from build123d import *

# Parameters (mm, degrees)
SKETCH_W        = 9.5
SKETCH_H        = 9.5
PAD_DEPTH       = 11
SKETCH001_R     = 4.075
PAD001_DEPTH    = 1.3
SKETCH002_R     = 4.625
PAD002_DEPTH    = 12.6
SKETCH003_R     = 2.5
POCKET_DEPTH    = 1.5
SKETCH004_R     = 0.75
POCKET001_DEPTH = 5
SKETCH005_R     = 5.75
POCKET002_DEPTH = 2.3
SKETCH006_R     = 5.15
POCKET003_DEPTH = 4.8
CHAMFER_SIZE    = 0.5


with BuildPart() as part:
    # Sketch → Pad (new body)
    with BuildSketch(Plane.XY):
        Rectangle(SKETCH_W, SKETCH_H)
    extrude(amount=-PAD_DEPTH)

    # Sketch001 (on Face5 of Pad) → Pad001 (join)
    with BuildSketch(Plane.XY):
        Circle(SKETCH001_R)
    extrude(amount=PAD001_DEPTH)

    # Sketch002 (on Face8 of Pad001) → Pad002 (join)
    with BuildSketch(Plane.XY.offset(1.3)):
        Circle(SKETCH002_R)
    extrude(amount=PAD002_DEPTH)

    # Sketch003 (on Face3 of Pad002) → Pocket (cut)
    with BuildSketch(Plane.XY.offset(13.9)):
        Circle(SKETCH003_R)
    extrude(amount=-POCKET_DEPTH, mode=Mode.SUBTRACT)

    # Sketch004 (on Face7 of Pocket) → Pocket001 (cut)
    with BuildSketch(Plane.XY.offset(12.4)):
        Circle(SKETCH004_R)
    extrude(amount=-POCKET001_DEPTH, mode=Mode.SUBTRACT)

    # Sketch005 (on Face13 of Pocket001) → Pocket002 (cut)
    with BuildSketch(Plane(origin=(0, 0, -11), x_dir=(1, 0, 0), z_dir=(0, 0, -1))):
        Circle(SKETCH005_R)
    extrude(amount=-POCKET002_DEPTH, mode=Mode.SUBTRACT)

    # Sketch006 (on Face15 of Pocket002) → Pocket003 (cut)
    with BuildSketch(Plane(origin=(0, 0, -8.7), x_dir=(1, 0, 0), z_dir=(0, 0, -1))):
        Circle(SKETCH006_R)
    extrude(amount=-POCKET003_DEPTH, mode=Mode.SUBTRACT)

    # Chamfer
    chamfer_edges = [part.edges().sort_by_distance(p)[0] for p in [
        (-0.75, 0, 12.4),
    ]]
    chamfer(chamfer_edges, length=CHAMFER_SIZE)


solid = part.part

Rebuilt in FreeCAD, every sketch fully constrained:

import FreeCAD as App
import Part
import Sketcher
from FreeCAD import Vector


def edges_at(feature, points):
    """Names of the edges that pass closest to the given points."""
    edges = feature.Shape.Edges
    near = lambda p: min(range(len(edges)), key=lambda i: edges[i].distToShape(Part.Vertex(*p))[0])
    return sorted({f"Edge{near(p) + 1}" for p in points})


def add_polygon(sketch, points):
    """Adds a closed chain of lines whose ends are joined by coincident constraints."""
    first, n = sketch.GeometryCount, len(points)
    for a, b in zip(points, points[1:] + points[:1]):
        sketch.addGeometry(Part.LineSegment(App.Vector(*a, 0), App.Vector(*b, 0)), False)
    for i in range(n):
        sketch.addConstraint(Sketcher.Constraint("Coincident", first + i, 2, first + (i + 1) % n, 1))

doc = App.newDocument("Part")
body = doc.addObject("PartDesign::Body", "Body")

sketch1 = body.newObject("Sketcher::SketchObject", "Sketch")
sketch1.AttachmentSupport = (doc.getObject("XY_Plane"), [""])
sketch1.MapMode = "FlatFace"
add_polygon(sketch1, [(-4.75, 4.75), (-4.75, -4.75), (4.75, -4.75), (4.75, 4.75)])
sketch1.addConstraint([
    Sketcher.Constraint("Vertical", 0),
    Sketcher.Constraint("Horizontal", 1),
    Sketcher.Constraint("Vertical", 2),
    Sketcher.Constraint("Horizontal", 3),
    Sketcher.Constraint("Symmetric", 0, 2, 2, 2, -1, 1),
    Sketcher.Constraint("Equal", 3, 0),
    Sketcher.Constraint("DistanceX", 1, 1, 1, 2, 9.5),
])
pad1 = body.newObject("PartDesign::Pad", "Pad")
pad1.Profile = sketch1
pad1.Length = 11
pad1.Reversed = True

sketch2 = body.newObject("Sketcher::SketchObject", "Sketch001")
sketch2.AttachmentSupport = (doc.getObject("XY_Plane"), [""])
sketch2.MapMode = "FlatFace"
sketch2.addGeometry(Part.Circle(Vector(0, 0, 0), Vector(0, 0, 1), 4.075), False)
sketch2.addConstraint([
    Sketcher.Constraint("Coincident", 0, 3, -1, 1),
    Sketcher.Constraint("Diameter", 0, 8.15),
])
pad2 = body.newObject("PartDesign::Pad", "Pad001")
pad2.Profile = sketch2
pad2.Length = 1.3

sketch3 = body.newObject("Sketcher::SketchObject", "Sketch002")
sketch3.AttachmentSupport = (doc.getObject("XY_Plane"), [""])
sketch3.MapMode = "FlatFace"
sketch3.AttachmentOffset = App.Placement(Vector(0, 0, 1.3), App.Rotation())
sketch3.addGeometry(Part.Circle(Vector(0, 0, 0), Vector(0, 0, 1), 4.625), False)
sketch3.addConstraint([
    Sketcher.Constraint("Coincident", 0, 3, -1, 1),
    Sketcher.Constraint("Diameter", 0, 9.25),
])
pad3 = body.newObject("PartDesign::Pad", "Pad002")
pad3.Profile = sketch3
pad3.Length = 12.6

sketch4 = body.newObject("Sketcher::SketchObject", "Sketch003")
sketch4.AttachmentSupport = (doc.getObject("XY_Plane"), [""])
sketch4.MapMode = "FlatFace"
sketch4.AttachmentOffset = App.Placement(Vector(0, 0, 13.9), App.Rotation())
sketch4.addGeometry(Part.Circle(Vector(0, 0, 0), Vector(0, 0, 1), 2.5), False)
sketch4.addConstraint([
    Sketcher.Constraint("Coincident", 0, 3, -1, 1),
    Sketcher.Constraint("Diameter", 0, 5.0),
])
pocket1 = body.newObject("PartDesign::Pocket", "Pocket")
pocket1.Profile = sketch4
pocket1.Length = 1.5

sketch5 = body.newObject("Sketcher::SketchObject", "Sketch004")
sketch5.AttachmentSupport = (doc.getObject("XY_Plane"), [""])
sketch5.MapMode = "FlatFace"
sketch5.AttachmentOffset = App.Placement(Vector(0, 0, 12.4), App.Rotation())
sketch5.addGeometry(Part.Circle(Vector(0, 0, 0), Vector(0, 0, 1), 0.75), False)
sketch5.addConstraint([
    Sketcher.Constraint("Coincident", 0, 3, -1, 1),
    Sketcher.Constraint("Diameter", 0, 1.5),
])
pocket2 = body.newObject("PartDesign::Pocket", "Pocket001")
pocket2.Profile = sketch5
pocket2.Length = 5

sketch6 = body.newObject("Sketcher::SketchObject", "Sketch005")
sketch6.AttachmentSupport = (doc.getObject("XY_Plane"), [""])
sketch6.MapMode = "FlatFace"
sketch6.AttachmentOffset = App.Placement(Vector(0, 0, -11), App.Rotation())
sketch6.addGeometry(Part.Circle(Vector(0, 0, 0), Vector(0, 0, 1), 5.75), False)
sketch6.addConstraint([
    Sketcher.Constraint("Coincident", 0, 3, -1, 1),
    Sketcher.Constraint("Diameter", 0, 11.5),
])
pocket3 = body.newObject("PartDesign::Pocket", "Pocket002")
pocket3.Profile = sketch6
pocket3.Length = 2.3
pocket3.Reversed = True

sketch7 = body.newObject("Sketcher::SketchObject", "Sketch006")
sketch7.AttachmentSupport = (doc.getObject("XY_Plane"), [""])
sketch7.MapMode = "FlatFace"
sketch7.AttachmentOffset = App.Placement(Vector(0, 0, -8.7), App.Rotation())
sketch7.addGeometry(Part.Circle(Vector(0, 0, 0), Vector(0, 0, 1), 5.15), False)
sketch7.addConstraint([
    Sketcher.Constraint("Coincident", 0, 3, -1, 1),
    Sketcher.Constraint("Diameter", 0, 10.3),
])
pocket4 = body.newObject("PartDesign::Pocket", "Pocket003")
pocket4.Profile = sketch7
pocket4.Length = 4.8
pocket4.Reversed = True
doc.recompute()

chamfer = body.newObject("PartDesign::Chamfer", "Chamfer")
chamfer.Base = (pocket4, edges_at(pocket4, [(-0.75, 0, 12.4)]))
chamfer.Size = 0.5

doc.recompute()
